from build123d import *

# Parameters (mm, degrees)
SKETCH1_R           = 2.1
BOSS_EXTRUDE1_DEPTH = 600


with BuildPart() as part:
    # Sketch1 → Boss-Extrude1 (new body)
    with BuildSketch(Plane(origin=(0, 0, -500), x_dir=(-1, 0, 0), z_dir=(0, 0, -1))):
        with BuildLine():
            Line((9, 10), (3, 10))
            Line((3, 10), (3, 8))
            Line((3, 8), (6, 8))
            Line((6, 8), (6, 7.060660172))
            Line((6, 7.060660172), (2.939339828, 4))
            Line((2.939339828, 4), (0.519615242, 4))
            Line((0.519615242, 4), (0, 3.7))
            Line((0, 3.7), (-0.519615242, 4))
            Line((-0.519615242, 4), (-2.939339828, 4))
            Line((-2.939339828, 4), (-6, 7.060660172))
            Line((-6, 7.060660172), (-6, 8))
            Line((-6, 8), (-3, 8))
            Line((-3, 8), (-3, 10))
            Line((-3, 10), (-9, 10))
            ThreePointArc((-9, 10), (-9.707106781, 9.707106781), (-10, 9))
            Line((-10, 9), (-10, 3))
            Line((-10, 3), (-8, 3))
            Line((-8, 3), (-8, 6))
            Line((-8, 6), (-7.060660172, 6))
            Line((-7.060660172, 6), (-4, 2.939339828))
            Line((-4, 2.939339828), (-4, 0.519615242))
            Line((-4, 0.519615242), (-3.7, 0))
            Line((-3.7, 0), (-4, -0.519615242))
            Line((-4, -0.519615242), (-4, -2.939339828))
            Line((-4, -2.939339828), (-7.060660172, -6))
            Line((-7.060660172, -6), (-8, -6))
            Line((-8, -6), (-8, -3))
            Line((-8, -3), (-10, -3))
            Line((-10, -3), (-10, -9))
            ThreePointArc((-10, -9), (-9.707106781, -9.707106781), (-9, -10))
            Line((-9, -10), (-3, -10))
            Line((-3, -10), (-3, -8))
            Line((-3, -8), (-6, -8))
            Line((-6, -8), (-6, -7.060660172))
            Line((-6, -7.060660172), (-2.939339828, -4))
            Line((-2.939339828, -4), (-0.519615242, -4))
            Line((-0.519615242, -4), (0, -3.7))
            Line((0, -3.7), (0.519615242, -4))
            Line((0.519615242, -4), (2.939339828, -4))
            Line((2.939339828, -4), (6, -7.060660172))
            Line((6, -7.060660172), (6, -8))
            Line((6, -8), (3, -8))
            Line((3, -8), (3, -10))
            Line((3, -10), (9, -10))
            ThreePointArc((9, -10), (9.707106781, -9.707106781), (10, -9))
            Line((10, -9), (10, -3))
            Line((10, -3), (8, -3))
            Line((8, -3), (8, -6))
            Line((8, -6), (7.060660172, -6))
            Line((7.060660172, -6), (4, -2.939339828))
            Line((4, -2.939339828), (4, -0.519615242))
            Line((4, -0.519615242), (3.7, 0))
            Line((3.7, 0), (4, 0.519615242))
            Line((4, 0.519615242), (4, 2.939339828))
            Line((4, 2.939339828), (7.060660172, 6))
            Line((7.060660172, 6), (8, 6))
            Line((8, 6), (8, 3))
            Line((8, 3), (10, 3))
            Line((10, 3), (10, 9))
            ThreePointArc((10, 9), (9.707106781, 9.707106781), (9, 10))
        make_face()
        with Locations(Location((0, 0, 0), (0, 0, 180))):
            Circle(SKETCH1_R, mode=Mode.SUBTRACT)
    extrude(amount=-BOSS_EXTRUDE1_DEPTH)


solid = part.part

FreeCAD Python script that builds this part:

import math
import FreeCAD as App
import Part
import Sketcher
from FreeCAD import Vector
Q = App.Units.Quantity

doc = App.newDocument("Part")
params = doc.addObject("Spreadsheet::Sheet", "Params")
for row, (alias, value) in enumerate([
    ("sketch1_radius", "1 mm"),
    ("sketch1_diameter", "4.2 mm"),
    ("sketch1_width", "6 mm"),
    ("sketch1_width2", "3 mm"),
    ("sketch1_width3", "2 mm"),
    ("pad1_length", "600 mm"),
], start=1):
    params.set(f"A{row}", alias)
    params.set(f"B{row}", "=" + value)
    params.setAlias(f"B{row}", alias)

body = doc.addObject("PartDesign::Body", "Body")

# Sketch on XY plane
sketch1 = body.newObject("Sketcher::SketchObject", "Sketch")
sketch1.AttachmentSupport = (doc.getObject("XY_Plane"), [""])
sketch1.MapMode = "FlatFace"
sketch1.AttachmentOffset = App.Placement(Vector(0, 0, -500), App.Rotation())
sketch1.addGeometry([
    Part.LineSegment(Vector(-9, 10, 0), Vector(-3, 10, 0)),  # 0
    Part.LineSegment(Vector(-3, 10, 0), Vector(-3, 8, 0)),  # 1
    Part.LineSegment(Vector(-3, 8, 0), Vector(-6, 8, 0)),  # 2
    Part.LineSegment(Vector(-6, 8, 0), Vector(-6, 7.06066, 0)),  # 3
    Part.LineSegment(Vector(-6, 7.06066, 0), Vector(-2.93934, 4, 0)),  # 4
    Part.LineSegment(Vector(-2.93934, 4, 0), Vector(-0.519615, 4, 0)),  # 5
    Part.LineSegment(Vector(-0.519615, 4, 0), Vector(0, 3.7, 0)),  # 6
    Part.LineSegment(Vector(0, 3.7, 0), Vector(0.519615, 4, 0)),  # 7
    Part.LineSegment(Vector(0.519615, 4, 0), Vector(2.93934, 4, 0)),  # 8
    Part.LineSegment(Vector(2.93934, 4, 0), Vector(6, 7.06066, 0)),  # 9
    Part.LineSegment(Vector(6, 7.06066, 0), Vector(6, 8, 0)),  # 10
    Part.LineSegment(Vector(6, 8, 0), Vector(3, 8, 0)),  # 11
    Part.LineSegment(Vector(3, 8, 0), Vector(3, 10, 0)),  # 12
    Part.LineSegment(Vector(3, 10, 0), Vector(9, 10, 0)),  # 13
    Part.ArcOfCircle(Part.Circle(Vector(9, 9, 0), Vector(0, 0, 1), 1), math.radians(0), math.radians(90)),  # 14
    Part.LineSegment(Vector(10, 9, 0), Vector(10, 3, 0)),  # 15
    Part.LineSegment(Vector(10, 3, 0), Vector(8, 3, 0)),  # 16
    Part.LineSegment(Vector(8, 3, 0), Vector(8, 6, 0)),  # 17
    Part.LineSegment(Vector(8, 6, 0), Vector(7.06066, 6, 0)),  # 18
    Part.LineSegment(Vector(7.06066, 6, 0), Vector(4, 2.93934, 0)),  # 19
    Part.LineSegment(Vector(4, 2.93934, 0), Vector(4, 0.519615, 0)),  # 20
    Part.LineSegment(Vector(4, 0.519615, 0), Vector(3.7, 0, 0)),  # 21
    Part.LineSegment(Vector(3.7, 0, 0), Vector(4, -0.519615, 0)),  # 22
    Part.LineSegment(Vector(4, -0.519615, 0), Vector(4, -2.93934, 0)),  # 23
    Part.LineSegment(Vector(4, -2.93934, 0), Vector(7.06066, -6, 0)),  # 24
    Part.LineSegment(Vector(7.06066, -6, 0), Vector(8, -6, 0)),  # 25
    Part.LineSegment(Vector(8, -6, 0), Vector(8, -3, 0)),  # 26
    Part.LineSegment(Vector(8, -3, 0), Vector(10, -3, 0)),  # 27
    Part.LineSegment(Vector(10, -3, 0), Vector(10, -9, 0)),  # 28
    Part.ArcOfCircle(Part.Circle(Vector(9, -9, 0), Vector(0, 0, 1), 1), math.radians(-90), math.radians(0)),  # 29
    Part.LineSegment(Vector(9, -10, 0), Vector(3, -10, 0)),  # 30
    Part.LineSegment(Vector(3, -10, 0), Vector(3, -8, 0)),  # 31
    Part.LineSegment(Vector(3, -8, 0), Vector(6, -8, 0)),  # 32
    Part.LineSegment(Vector(6, -8, 0), Vector(6, -7.06066, 0)),  # 33
    Part.LineSegment(Vector(6, -7.06066, 0), Vector(2.93934, -4, 0)),  # 34
    Part.LineSegment(Vector(2.93934, -4, 0), Vector(0.519615, -4, 0)),  # 35
    Part.LineSegment(Vector(0.519615, -4, 0), Vector(0, -3.7, 0)),  # 36
    Part.LineSegment(Vector(0, -3.7, 0), Vector(-0.519615, -4, 0)),  # 37
    Part.LineSegment(Vector(-0.519615, -4, 0), Vector(-2.93934, -4, 0)),  # 38
    Part.LineSegment(Vector(-2.93934, -4, 0), Vector(-6, -7.06066, 0)),  # 39
    Part.LineSegment(Vector(-6, -7.06066, 0), Vector(-6, -8, 0)),  # 40
    Part.LineSegment(Vector(-6, -8, 0), Vector(-3, -8, 0)),  # 41
    Part.LineSegment(Vector(-3, -8, 0), Vector(-3, -10, 0)),  # 42
    Part.LineSegment(Vector(-3, -10, 0), Vector(-9, -10, 0)),  # 43
    Part.ArcOfCircle(Part.Circle(Vector(-9, -9, 0), Vector(0, 0, 1), 1), math.radians(-180), math.radians(-90)),  # 44
    Part.LineSegment(Vector(-10, -9, 0), Vector(-10, -3, 0)),  # 45
    Part.LineSegment(Vector(-10, -3, 0), Vector(-8, -3, 0)),  # 46
    Part.LineSegment(Vector(-8, -3, 0), Vector(-8, -6, 0)),  # 47
    Part.LineSegment(Vector(-8, -6, 0), Vector(-7.06066, -6, 0)),  # 48
    Part.LineSegment(Vector(-7.06066, -6, 0), Vector(-4, -2.93934, 0)),  # 49
    Part.LineSegment(Vector(-4, -2.93934, 0), Vector(-4, -0.519615, 0)),  # 50
    Part.LineSegment(Vector(-4, -0.519615, 0), Vector(-3.7, 0, 0)),  # 51
    Part.LineSegment(Vector(-3.7, 0, 0), Vector(-4, 0.519615, 0)),  # 52
    Part.LineSegment(Vector(-4, 0.519615, 0), Vector(-4, 2.93934, 0)),  # 53
    Part.LineSegment(Vector(-4, 2.93934, 0), Vector(-7.06066, 6, 0)),  # 54
    Part.LineSegment(Vector(-7.06066, 6, 0), Vector(-8, 6, 0)),  # 55
    Part.LineSegment(Vector(-8, 6, 0), Vector(-8, 3, 0)),  # 56
    Part.LineSegment(Vector(-8, 3, 0), Vector(-10, 3, 0)),  # 57
    Part.LineSegment(Vector(-10, 3, 0), Vector(-10, 9, 0)),  # 58
    Part.ArcOfCircle(Part.Circle(Vector(-9, 9, 0), Vector(0, 0, 1), 1), math.radians(90), math.radians(180)),  # 59
    Part.Circle(Vector(0, 0, 0), Vector(0, 0, 1), 2.1),  # 60
], False)
sketch1.addConstraint([
    Sketcher.Constraint("Coincident", 0, 2, 1, 1),
    Sketcher.Constraint("Coincident", 1, 2, 2, 1),
    Sketcher.Constraint("Coincident", 2, 2, 3, 1),
    Sketcher.Constraint("Coincident", 3, 2, 4, 1),
    Sketcher.Constraint("Coincident", 4, 2, 5, 1),
    Sketcher.Constraint("Coincident", 5, 2, 6, 1),
    Sketcher.Constraint("Coincident", 6, 2, 7, 1),
    Sketcher.Constraint("Coincident", 7, 2, 8, 1),
    Sketcher.Constraint("Coincident", 8, 2, 9, 1),
    Sketcher.Constraint("Coincident", 9, 2, 10, 1),
    Sketcher.Constraint("Coincident", 10, 2, 11, 1),
    Sketcher.Constraint("Coincident", 11, 2, 12, 1),
    Sketcher.Constraint("Coincident", 12, 2, 13, 1),
    Sketcher.Constraint("Tangent", 13, 2, 14, 2),
    Sketcher.Constraint("Tangent", 14, 1, 15, 1),
    Sketcher.Constraint("Coincident", 15, 2, 16, 1),
    Sketcher.Constraint("Coincident", 16, 2, 17, 1),
    Sketcher.Constraint("Coincident", 17, 2, 18, 1),
    Sketcher.Constraint("Coincident", 18, 2, 19, 1),
    Sketcher.Constraint("Coincident", 19, 2, 20, 1),
    Sketcher.Constraint("Coincident", 20, 2, 21, 1),
    Sketcher.Constraint("Coincident", 21, 2, 22, 1),
    Sketcher.Constraint("Coincident", 22, 2, 23, 1),
    Sketcher.Constraint("Coincident", 23, 2, 24, 1),
    Sketcher.Constraint("Coincident", 24, 2, 25, 1),
    Sketcher.Constraint("Coincident", 25, 2, 26, 1),
    Sketcher.Constraint("Coincident", 26, 2, 27, 1),
    Sketcher.Constraint("Coincident", 27, 2, 28, 1),
    Sketcher.Constraint("Tangent", 28, 2, 29, 2),
    Sketcher.Constraint("Tangent", 29, 1, 30, 1),
    Sketcher.Constraint("Coincident", 30, 2, 31, 1),
    Sketcher.Constraint("Coincident", 31, 2, 32, 1),
    Sketcher.Constraint("Coincident", 32, 2, 33, 1),
    Sketcher.Constraint("Coincident", 33, 2, 34, 1),
    Sketcher.Constraint("Coincident", 34, 2, 35, 1),
    Sketcher.Constraint("Coincident", 35, 2, 36, 1),
    Sketcher.Constraint("Coincident", 36, 2, 37, 1),
    Sketcher.Constraint("Coincident", 37, 2, 38, 1),
    Sketcher.Constraint("Coincident", 38, 2, 39, 1),
    Sketcher.Constraint("Coincident", 39, 2, 40, 1),
    Sketcher.Constraint("Coincident", 40, 2, 41, 1),
    Sketcher.Constraint("Coincident", 41, 2, 42, 1),
    Sketcher.Constraint("Coincident", 42, 2, 43, 1),
    Sketcher.Constraint("Tangent", 43, 2, 44, 2),
    Sketcher.Constraint("Tangent", 44, 1, 45, 1),
    Sketcher.Constraint("Coincident", 45, 2, 46, 1),
    Sketcher.Constraint("Coincident", 46, 2, 47, 1),
    Sketcher.Constraint("Coincident", 47, 2, 48, 1),
    Sketcher.Constraint("Coincident", 48, 2, 49, 1),
    Sketcher.Constraint("Coincident", 49, 2, 50, 1),
    Sketcher.Constraint("Coincident", 50, 2, 51, 1),
    Sketcher.Constraint("Coincident", 51, 2, 52, 1),
    Sketcher.Constraint("Coincident", 52, 2, 53, 1),
    Sketcher.Constraint("Coincident", 53, 2, 54, 1),
    Sketcher.Constraint("Coincident", 54, 2, 55, 1),
    Sketcher.Constraint("Coincident", 55, 2, 56, 1),
    Sketcher.Constraint("Coincident", 56, 2, 57, 1),
    Sketcher.Constraint("Coincident", 57, 2, 58, 1),
    Sketcher.Constraint("Tangent", 58, 2, 59, 2),
    Sketcher.Constraint("Tangent", 59, 1, 0, 1),
    Sketcher.Constraint("Horizontal", 0),
    Sketcher.Constraint("Vertical", 1),
    Sketcher.Constraint("Horizontal", 2),
    Sketcher.Constraint("Vertical", 3),
    Sketcher.Constraint("Horizontal", 5),
    Sketcher.Constraint("Horizontal", 8),
    Sketcher.Constraint("Vertical", 10),
    Sketcher.Constraint("Horizontal", 11),
    Sketcher.Constraint("Vertical", 12),
    Sketcher.Constraint("Horizontal", 13),
    Sketcher.Constraint("Vertical", 15),
    Sketcher.Constraint("Horizontal", 16),
    Sketcher.Constraint("Vertical", 17),
    Sketcher.Constraint("Horizontal", 18),
    Sketcher.Constraint("Vertical", 20),
    Sketcher.Constraint("Vertical", 23),
    Sketcher.Constraint("Horizontal", 25),
    Sketcher.Constraint("Vertical", 26),
    Sketcher.Constraint("Horizontal", 27),
    Sketcher.Constraint("Vertical", 28),
    Sketcher.Constraint("Horizontal", 30),
    Sketcher.Constraint("Vertical", 31),
    Sketcher.Constraint("Horizontal", 32),
    Sketcher.Constraint("Vertical", 33),
    Sketcher.Constraint("Horizontal", 35),
    Sketcher.Constraint("Horizontal", 38),
    Sketcher.Constraint("Vertical", 40),
    Sketcher.Constraint("Horizontal", 41),
    Sketcher.Constraint("Vertical", 42),
    Sketcher.Constraint("Horizontal", 43),
    Sketcher.Constraint("Vertical", 45),
    Sketcher.Constraint("Horizontal", 46),
    Sketcher.Constraint("Vertical", 47),
    Sketcher.Constraint("Horizontal", 48),
    Sketcher.Constraint("Vertical", 50),
    Sketcher.Constraint("Vertical", 53),
    Sketcher.Constraint("Horizontal", 55),
    Sketcher.Constraint("Vertical", 56),
    Sketcher.Constraint("Horizontal", 57),
    Sketcher.Constraint("Vertical", 58),
    Sketcher.Constraint("Coincident", 60, 3, -1, 1),
    Sketcher.Constraint("Equal", 14, 29),
    Sketcher.Constraint("Equal", 29, 44),
    Sketcher.Constraint("Equal", 44, 59),
    Sketcher.Constraint("Symmetric", 14, 3, 44, 3, -1, 1),
    Sketcher.Constraint("Symmetric", 29, 3, 59, 3, -1, 1),
    Sketcher.Constraint("Symmetric", 1, 2, 31, 2, -1, 1),
    Sketcher.Constraint("Symmetric", 3, 2, 33, 2, -1, 1),
    Sketcher.Constraint("Symmetric", 4, 2, 34, 2, -1, 1),
    Sketcher.Constraint("Symmetric", 6, 2, 36, 2, -1, 1),
    Sketcher.Constraint("Symmetric", 7, 2, 37, 2, -1, 1),
    Sketcher.Constraint("Symmetric", 9, 2, 39, 2, -1, 1),
    Sketcher.Constraint("Symmetric", 11, 2, 41, 2, -1, 1),
    Sketcher.Constraint("Symmetric", 16, 2, 46, 2, -1, 1),
    Sketcher.Constraint("Symmetric", 18, 2, 48, 2, -1, 1),
    Sketcher.Constraint("Symmetric", 19, 2, 49, 2, -1, 1),
    Sketcher.Constraint("Symmetric", 21, 2, 51, 2, -1, 1),
    Sketcher.Constraint("Symmetric", 22, 2, 52, 2, -1, 1),
    Sketcher.Constraint("Symmetric", 24, 2, 54, 2, -1, 1),
    Sketcher.Constraint("Symmetric", 26, 2, 56, 2, -1, 1),
    Sketcher.Constraint("Symmetric", 29, 3, 44, 3, -2),
    Sketcher.Constraint("Symmetric", 5, 2, 7, 2, -2),
    Sketcher.Constraint("Symmetric", 3, 2, 9, 2, -2),
    Sketcher.Constraint("Symmetric", 1, 2, 11, 2, -2),
    Sketcher.Constraint("Symmetric", 26, 2, 46, 2, -2),
    Sketcher.Constraint("Symmetric", 24, 2, 48, 2, -2),
    Sketcher.Constraint("Symmetric", 23, 2, 49, 2, -2),
    Sketcher.Constraint("PointOnObject", 6, 2, -2),
    Sketcher.Constraint("PointOnObject", 21, 2, -1),
    Sketcher.Constraint("Perpendicular", 4, 9),
    Sketcher.Constraint("Parallel", 9, 19),
    Sketcher.Constraint("Perpendicular", 6, 21),
    Sketcher.Constraint("Perpendicular", 7, 22),
    Sketcher.Constraint("Perpendicular", 19, 24),
    Sketcher.Constraint("Perpendicular", 21, 36),
    Sketcher.Constraint("Perpendicular", 34, 39),
    Sketcher.Constraint("Perpendicular", 36, 51),
    Sketcher.Constraint("Perpendicular", 49, 54),
    Sketcher.Constraint("Equal", 57, 1),
    Sketcher.Constraint("Equal", 55, 3),
    Sketcher.Constraint("Equal", 43, 15),
    Sketcher.Constraint("Equal", 41, 17),
    Sketcher.Constraint("Equal", 38, 20),
    Sketcher.Constraint("Equal", 9, 19),
    Sketcher.Constraint("Equal", 7, 21),
    Sketcher.Constraint("Radius", 14, 1.0),
    Sketcher.Constraint("Diameter", 60, 4.2),
    Sketcher.Constraint("DistanceX", 0, 1, 0, 2, 6.0),
    Sketcher.Constraint("DistanceX", 2, 2, 2, 1, 3.0),
    Sketcher.Constraint("DistanceX", 16, 2, 16, 1, 2.0),
    Sketcher.Constraint("Angle", 6, Q("-30 deg")),
    Sketcher.Constraint("DistanceX", -1, 1, 14, 3, 9.0),
    Sketcher.Constraint("DistanceY", -1, 1, 4, 2, 4.0),
    Sketcher.Constraint("Distance", 6, 0.6),
    Sketcher.Constraint("DistanceX", 18, 2, 18, 1, 0.93934),
])
sketch1.setExpression("Constraints[145]", "Params.sketch1_radius")
sketch1.setExpression("Constraints[146]", "Params.sketch1_diameter")
sketch1.setExpression("Constraints[147]", "Params.sketch1_width")
sketch1.setExpression("Constraints[148]", "Params.sketch1_width2")
sketch1.setExpression("Constraints[149]", "Params.sketch1_width3")
pad1 = body.newObject("PartDesign::Pad", "Pad")
pad1.Profile = sketch1
pad1.setExpression("Length", "Params.pad1_length")

doc.recompute()
